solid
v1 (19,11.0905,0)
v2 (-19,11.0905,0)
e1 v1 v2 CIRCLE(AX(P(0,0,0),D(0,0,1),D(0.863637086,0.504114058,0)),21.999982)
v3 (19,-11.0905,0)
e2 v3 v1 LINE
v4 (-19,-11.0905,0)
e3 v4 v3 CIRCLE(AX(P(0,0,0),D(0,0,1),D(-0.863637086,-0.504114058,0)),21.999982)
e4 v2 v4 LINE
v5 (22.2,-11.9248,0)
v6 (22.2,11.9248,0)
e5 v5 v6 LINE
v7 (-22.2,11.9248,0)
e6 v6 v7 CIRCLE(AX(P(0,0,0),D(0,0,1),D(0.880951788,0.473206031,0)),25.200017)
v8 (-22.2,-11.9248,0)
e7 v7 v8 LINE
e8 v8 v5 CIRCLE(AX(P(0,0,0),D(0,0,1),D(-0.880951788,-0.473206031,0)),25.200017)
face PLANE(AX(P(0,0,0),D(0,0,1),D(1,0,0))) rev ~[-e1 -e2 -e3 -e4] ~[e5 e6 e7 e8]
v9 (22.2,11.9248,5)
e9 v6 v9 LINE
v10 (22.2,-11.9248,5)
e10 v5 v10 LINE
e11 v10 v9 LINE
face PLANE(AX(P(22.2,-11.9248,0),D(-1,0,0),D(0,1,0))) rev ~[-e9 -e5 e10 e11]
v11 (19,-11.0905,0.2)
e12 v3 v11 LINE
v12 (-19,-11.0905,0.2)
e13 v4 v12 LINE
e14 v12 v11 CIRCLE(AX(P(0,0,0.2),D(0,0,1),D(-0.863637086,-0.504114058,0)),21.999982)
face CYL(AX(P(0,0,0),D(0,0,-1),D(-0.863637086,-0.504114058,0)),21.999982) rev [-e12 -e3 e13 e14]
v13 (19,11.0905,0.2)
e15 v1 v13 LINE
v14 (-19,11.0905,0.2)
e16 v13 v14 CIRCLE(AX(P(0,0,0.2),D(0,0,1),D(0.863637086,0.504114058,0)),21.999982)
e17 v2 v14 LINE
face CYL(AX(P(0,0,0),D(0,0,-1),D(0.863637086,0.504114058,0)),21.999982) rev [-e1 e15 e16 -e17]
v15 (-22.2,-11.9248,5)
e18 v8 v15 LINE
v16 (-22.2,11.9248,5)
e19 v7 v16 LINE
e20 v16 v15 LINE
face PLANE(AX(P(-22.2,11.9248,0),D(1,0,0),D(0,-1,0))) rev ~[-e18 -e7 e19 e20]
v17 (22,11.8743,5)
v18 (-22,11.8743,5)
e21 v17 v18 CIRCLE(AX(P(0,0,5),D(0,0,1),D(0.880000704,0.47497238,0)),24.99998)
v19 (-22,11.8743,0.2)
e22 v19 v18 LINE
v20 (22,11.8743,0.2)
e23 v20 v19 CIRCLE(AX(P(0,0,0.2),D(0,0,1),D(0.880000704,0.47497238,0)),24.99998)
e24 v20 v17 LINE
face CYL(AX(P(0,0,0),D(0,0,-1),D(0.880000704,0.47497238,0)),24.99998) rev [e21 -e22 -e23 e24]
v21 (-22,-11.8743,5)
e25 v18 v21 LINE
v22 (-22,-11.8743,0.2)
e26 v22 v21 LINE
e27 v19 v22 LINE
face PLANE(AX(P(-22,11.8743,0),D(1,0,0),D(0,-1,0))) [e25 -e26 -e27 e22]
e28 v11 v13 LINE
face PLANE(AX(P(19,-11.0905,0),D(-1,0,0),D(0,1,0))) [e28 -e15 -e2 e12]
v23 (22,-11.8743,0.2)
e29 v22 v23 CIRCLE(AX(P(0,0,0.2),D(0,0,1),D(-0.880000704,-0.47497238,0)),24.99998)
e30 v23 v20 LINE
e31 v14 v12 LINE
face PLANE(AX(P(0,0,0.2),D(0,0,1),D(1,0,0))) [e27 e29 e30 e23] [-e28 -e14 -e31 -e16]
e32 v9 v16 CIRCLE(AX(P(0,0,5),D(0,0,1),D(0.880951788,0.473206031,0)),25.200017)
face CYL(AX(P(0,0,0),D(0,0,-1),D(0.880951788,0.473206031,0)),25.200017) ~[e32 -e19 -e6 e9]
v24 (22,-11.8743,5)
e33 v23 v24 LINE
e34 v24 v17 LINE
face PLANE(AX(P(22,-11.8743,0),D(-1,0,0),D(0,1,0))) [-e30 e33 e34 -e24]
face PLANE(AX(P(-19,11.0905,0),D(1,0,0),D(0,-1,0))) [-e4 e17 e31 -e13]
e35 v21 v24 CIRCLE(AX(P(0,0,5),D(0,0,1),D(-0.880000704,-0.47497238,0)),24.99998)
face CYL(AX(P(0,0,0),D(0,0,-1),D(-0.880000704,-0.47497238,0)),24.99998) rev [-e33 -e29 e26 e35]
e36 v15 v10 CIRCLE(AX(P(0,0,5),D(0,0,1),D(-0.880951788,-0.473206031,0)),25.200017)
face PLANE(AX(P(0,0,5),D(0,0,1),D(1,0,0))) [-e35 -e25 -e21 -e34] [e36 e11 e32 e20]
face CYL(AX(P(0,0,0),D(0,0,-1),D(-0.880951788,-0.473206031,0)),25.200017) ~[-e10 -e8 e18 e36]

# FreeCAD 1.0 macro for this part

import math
import FreeCAD as App
import Part
import Sketcher
Q = App.Units.Quantity

doc = App.newDocument("Part")
body = doc.addObject("PartDesign::Body", "Body")

sketch1 = body.newObject("Sketcher::SketchObject", "Sketch")
sketch1.AttachmentSupport = (doc.getObject("XY_Plane"), [""])
sketch1.MapMode = "FlatFace"
sketch1.addGeometry([
    Part.LineSegment(App.Vector(22, -11.8743, 0), App.Vector(22, 11.8743, 0)),
    Part.ArcOfCircle(Part.Circle(App.Vector(0, 0, 0), App.Vector(0, 0, 1), 24.99998), math.radians(28.357552), math.radians(151.642448)),
    Part.LineSegment(App.Vector(-22, 11.8743, 0), App.Vector(-22, -11.8743, 0)),
    Part.ArcOfCircle(Part.Circle(App.Vector(0, 0, 0), App.Vector(0, 0, 1), 24.99998), math.radians(-151.642448), math.radians(-28.357552)),
    Part.LineSegment(App.Vector(-19, -11.0905, 0), App.Vector(-19, 11.0905, 0)),
    Part.ArcOfCircle(Part.Circle(App.Vector(0, 0, 0), App.Vector(0, 0, 1), 21.999982), math.radians(30.272559), math.radians(149.727441)),
    Part.LineSegment(App.Vector(19, 11.0905, 0), App.Vector(19, -11.0905, 0)),
    Part.ArcOfCircle(Part.Circle(App.Vector(0, 0, 0), App.Vector(0, 0, 1), 21.999982), math.radians(-149.727441), math.radians(-30.272559)),
], False)
sketch1.addConstraint([
    Sketcher.Constraint("Coincident", 0, 2, 1, 1),
    Sketcher.Constraint("Coincident", 1, 2, 2, 1),
    Sketcher.Constraint("Coincident", 2, 2, 3, 1),
    Sketcher.Constraint("Coincident", 3, 2, 0, 1),
    Sketcher.Constraint("Coincident", 4, 2, 5, 2),
    Sketcher.Constraint("Coincident", 5, 1, 6, 1),
    Sketcher.Constraint("Coincident", 6, 2, 7, 2),
    Sketcher.Constraint("Coincident", 7, 1, 4, 1),
    Sketcher.Constraint("Vertical", 0),
    Sketcher.Constraint("Vertical", 2),
    Sketcher.Constraint("Vertical", 4),
    Sketcher.Constraint("Vertical", 6),
    Sketcher.Constraint("Coincident", 1, 3, -1, 1),
    Sketcher.Constraint("Coincident", 3, 3, -1, 1),
    Sketcher.Constraint("Coincident", 5, 3, -1, 1),
    Sketcher.Constraint("Coincident", 7, 3, -1, 1),
    Sketcher.Constraint("Equal", 1, 3),
    Sketcher.Constraint("Equal", 5, 7),
    Sketcher.Constraint("Horizontal", 0, 2, 1, 2),
    Sketcher.Constraint("Horizontal", 4, 2, 5, 1),
    Sketcher.Constraint("Radius", 1, Q("25 mm")),
    Sketcher.Constraint("Radius", 5, Q("22 mm")),
    Sketcher.Constraint("DistanceX", 1, 2, 0, 2, Q("44 mm")),
    Sketcher.Constraint("DistanceX", 1, 2, 4, 2, Q("3 mm")),
])
pad1 = body.newObject("PartDesign::Pad", "Pad")
pad1.Profile = sketch1
pad1.Length = 0.2

sketch2 = body.newObject("Sketcher::SketchObject", "Sketch001")
sketch2.AttachmentSupport = (doc.getObject("XY_Plane"), [""])
sketch2.MapMode = "FlatFace"
sketch2.addGeometry([
    Part.ArcOfCircle(Part.Circle(App.Vector(0, 0, 0), App.Vector(0, 0, 1), 25.200017), math.radians(28.242609), math.radians(151.757391)),
    Part.LineSegment(App.Vector(-22.2, 11.9248, 0), App.Vector(-22.2, -11.9248, 0)),
    Part.ArcOfCircle(Part.Circle(App.Vector(0, 0, 0), App.Vector(0, 0, 1), 25.200017), math.radians(-151.757391), math.radians(-28.242609)),
    Part.LineSegment(App.Vector(22.2, -11.9248, 0), App.Vector(22.2, 11.9248, 0)),
    Part.ArcOfCircle(Part.Circle(App.Vector(0, 0, 0), App.Vector(0, 0, 1), 24.99998), math.radians(28.357552), math.radians(151.642448)),
    Part.LineSegment(App.Vector(22, 11.8743, 0), App.Vector(22, -11.8743, 0)),
    Part.ArcOfCircle(Part.Circle(App.Vector(0, 0, 0), App.Vector(0, 0, 1), 24.99998), math.radians(-151.642448), math.radians(-28.357552)),
    Part.LineSegment(App.Vector(-22, -11.8743, 0), App.Vector(-22, 11.8743, 0)),
], False)
sketch2.addConstraint([
    Sketcher.Constraint("Coincident", 0, 2, 1, 1),
    Sketcher.Constraint("Coincident", 1, 2, 2, 1),
    Sketcher.Constraint("Coincident", 2, 2, 3, 1),
    Sketcher.Constraint("Coincident", 3, 2, 0, 1),
    Sketcher.Constraint("Coincident", 4, 1, 5, 1),
    Sketcher.Constraint("Coincident", 5, 2, 6, 2),
    Sketcher.Constraint("Coincident", 6, 1, 7, 1),
    Sketcher.Constraint("Coincident", 7, 2, 4, 2),
    Sketcher.Constraint("Vertical", 1),
    Sketcher.Constraint("Vertical", 3),
    Sketcher.Constraint("Vertical", 5),
    Sketcher.Constraint("Vertical", 7),
    Sketcher.Constraint("Coincident", 0, 3, -1, 1),
    Sketcher.Constraint("Coincident", 2, 3, -1, 1),
    Sketcher.Constraint("Coincident", 4, 3, -1, 1),
    Sketcher.Constraint("Coincident", 6, 3, -1, 1),
    Sketcher.Constraint("Equal", 0, 2),
    Sketcher.Constraint("Equal", 4, 6),
    Sketcher.Constraint("Horizontal", 1, 2, 2, 2),
    Sketcher.Constraint("Horizontal", 5, 2, 6, 1),
    Sketcher.Constraint("Radius", 4, Q("25 mm")),
    Sketcher.Constraint("Radius", 0, Q("25.2 mm")),
    Sketcher.Constraint("DistanceX", 4, 1, 3, 2, Q("0.2 mm")),
    Sketcher.Constraint("DistanceX", -1, 1, 4, 1, Q("22 mm")),
])
pad2 = body.newObject("PartDesign::Pad", "Pad001")
pad2.Profile = sketch2
pad2.Length = 5

doc.recompute()
